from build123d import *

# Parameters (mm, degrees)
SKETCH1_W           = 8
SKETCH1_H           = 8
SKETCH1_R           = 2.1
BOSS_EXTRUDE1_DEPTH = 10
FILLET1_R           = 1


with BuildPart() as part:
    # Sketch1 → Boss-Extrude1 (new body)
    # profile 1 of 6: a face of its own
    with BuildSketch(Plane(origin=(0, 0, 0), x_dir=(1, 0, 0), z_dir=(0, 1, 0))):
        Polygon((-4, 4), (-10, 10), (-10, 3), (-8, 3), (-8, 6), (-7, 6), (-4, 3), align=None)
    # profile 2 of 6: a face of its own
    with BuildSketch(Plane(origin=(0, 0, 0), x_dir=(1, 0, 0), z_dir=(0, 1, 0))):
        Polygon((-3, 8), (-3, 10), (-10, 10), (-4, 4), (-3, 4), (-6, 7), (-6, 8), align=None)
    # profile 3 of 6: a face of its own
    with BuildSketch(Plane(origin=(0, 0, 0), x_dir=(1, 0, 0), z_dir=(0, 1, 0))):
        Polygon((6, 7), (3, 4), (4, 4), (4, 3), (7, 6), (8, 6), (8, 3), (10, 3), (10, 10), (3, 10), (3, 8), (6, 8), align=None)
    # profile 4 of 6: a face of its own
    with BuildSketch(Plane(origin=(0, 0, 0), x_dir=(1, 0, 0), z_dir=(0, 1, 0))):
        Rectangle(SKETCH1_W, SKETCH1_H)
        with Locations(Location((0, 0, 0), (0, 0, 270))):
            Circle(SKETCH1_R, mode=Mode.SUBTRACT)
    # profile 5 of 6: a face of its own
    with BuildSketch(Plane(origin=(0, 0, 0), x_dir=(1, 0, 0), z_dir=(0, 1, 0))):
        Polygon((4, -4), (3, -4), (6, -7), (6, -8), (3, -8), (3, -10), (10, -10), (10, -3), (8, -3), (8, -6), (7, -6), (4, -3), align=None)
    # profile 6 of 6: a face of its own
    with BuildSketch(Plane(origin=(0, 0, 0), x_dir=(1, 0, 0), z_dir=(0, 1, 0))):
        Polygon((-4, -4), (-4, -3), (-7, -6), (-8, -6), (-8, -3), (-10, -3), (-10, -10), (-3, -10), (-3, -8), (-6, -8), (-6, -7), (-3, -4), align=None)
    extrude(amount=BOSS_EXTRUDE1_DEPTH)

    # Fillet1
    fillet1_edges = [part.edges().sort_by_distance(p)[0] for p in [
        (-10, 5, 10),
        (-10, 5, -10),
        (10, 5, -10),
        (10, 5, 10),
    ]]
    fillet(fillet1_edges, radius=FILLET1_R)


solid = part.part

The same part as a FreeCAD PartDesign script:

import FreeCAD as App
import Part
import Sketcher

V = App.Vector
Q = App.Units.Quantity


def edges_at(feature, points):
    """Names of the edges that pass closest to the given points."""
    edges = feature.Shape.Edges
    near = lambda p: min(range(len(edges)), key=lambda i: edges[i].distToShape(Part.Vertex(*p))[0])
    return sorted({f"Edge{near(p) + 1}" for p in points})

doc = App.newDocument("Part")
body = doc.addObject("PartDesign::Body", "Body")

# Sketch on XZ plane
sketch1 = doc.addObject("Sketcher::SketchObject", "Sketch")
body.addObject(sketch1)
sketch1.AttachmentSupport = (doc.XZ_Plane, [""])
sketch1.MapMode = "FlatFace"
sketch1.addGeometry(Part.LineSegment(V(-10, -10, 0), V(-10, -3, 0)), False)
sketch1.addGeometry(Part.LineSegment(V(-10, -3, 0), V(-8, -3, 0)), False)
sketch1.addGeometry(Part.LineSegment(V(-8, -3, 0), V(-8, -6, 0)), False)
sketch1.addGeometry(Part.LineSegment(V(-8, -6, 0), V(-7, -6, 0)), False)
sketch1.addGeometry(Part.LineSegment(V(-7, -6, 0), V(-4, -3, 0)), False)
sketch1.addGeometry(Part.LineSegment(V(-4, -3, 0), V(-4, 3, 0)), False)
sketch1.addGeometry(Part.LineSegment(V(-4, 3, 0), V(-7, 6, 0)), False)
sketch1.addGeometry(Part.LineSegment(V(-7, 6, 0), V(-8, 6, 0)), False)
sketch1.addGeometry(Part.LineSegment(V(-8, 6, 0), V(-8, 3, 0)), False)
sketch1.addGeometry(Part.LineSegment(V(-8, 3, 0), V(-10, 3, 0)), False)
sketch1.addGeometry(Part.LineSegment(V(-10, 3, 0), V(-10, 10, 0)), False)
sketch1.addGeometry(Part.LineSegment(V(-10, 10, 0), V(-3, 10, 0)), False)
sketch1.addGeometry(Part.LineSegment(V(-3, 10, 0), V(-3, 8, 0)), False)
sketch1.addGeometry(Part.LineSegment(V(-3, 8, 0), V(-6, 8, 0)), False)
sketch1.addGeometry(Part.LineSegment(V(-6, 8, 0), V(-6, 7, 0)), False)
sketch1.addGeometry(Part.LineSegment(V(-6, 7, 0), V(-3, 4, 0)), False)
sketch1.addGeometry(Part.LineSegment(V(-3, 4, 0), V(3, 4, 0)), False)
sketch1.addGeometry(Part.LineSegment(V(3, 4, 0), V(6, 7, 0)), False)
sketch1.addGeometry(Part.LineSegment(V(6, 7, 0), V(6, 8, 0)), False)
sketch1.addGeometry(Part.LineSegment(V(6, 8, 0), V(3, 8, 0)), False)
sketch1.addGeometry(Part.LineSegment(V(3, 8, 0), V(3, 10, 0)), False)
sketch1.addGeometry(Part.LineSegment(V(3, 10, 0), V(10, 10, 0)), False)
sketch1.addGeometry(Part.LineSegment(V(10, 10, 0), V(10, 3, 0)), False)
sketch1.addGeometry(Part.LineSegment(V(10, 3, 0), V(8, 3, 0)), False)
sketch1.addGeometry(Part.LineSegment(V(8, 3, 0), V(8, 6, 0)), False)
sketch1.addGeometry(Part.LineSegment(V(8, 6, 0), V(7, 6, 0)), False)
sketch1.addGeometry(Part.LineSegment(V(7, 6, 0), V(4, 3, 0)), False)
sketch1.addGeometry(Part.LineSegment(V(4, 3, 0), V(4, -3, 0)), False)
sketch1.addGeometry(Part.LineSegment(V(4, -3, 0), V(7, -6, 0)), False)
sketch1.addGeometry(Part.LineSegment(V(7, -6, 0), V(8, -6, 0)), False)
sketch1.addGeometry(Part.LineSegment(V(8, -6, 0), V(8, -3, 0)), False)
sketch1.addGeometry(Part.LineSegment(V(8, -3, 0), V(10, -3, 0)), False)
sketch1.addGeometry(Part.LineSegment(V(10, -3, 0), V(10, -10, 0)), False)
sketch1.addGeometry(Part.LineSegment(V(10, -10, 0), V(3, -10, 0)), False)
sketch1.addGeometry(Part.LineSegment(V(3, -10, 0), V(3, -8, 0)), False)
sketch1.addGeometry(Part.LineSegment(V(3, -8, 0), V(6, -8, 0)), False)
sketch1.addGeometry(Part.LineSegment(V(6, -8, 0), V(6, -7, 0)), False)
sketch1.addGeometry(Part.LineSegment(V(6, -7, 0), V(3, -4, 0)), False)
sketch1.addGeometry(Part.LineSegment(V(3, -4, 0), V(-3, -4, 0)), False)
sketch1.addGeometry(Part.LineSegment(V(-3, -4, 0), V(-6, -7, 0)), False)
sketch1.addGeometry(Part.LineSegment(V(-6, -7, 0), V(-6, -8, 0)), False)
sketch1.addGeometry(Part.LineSegment(V(-6, -8, 0), V(-3, -8, 0)), False)
sketch1.addGeometry(Part.LineSegment(V(-3, -8, 0), V(-3, -10, 0)), False)
sketch1.addGeometry(Part.LineSegment(V(-3, -10, 0), V(-10, -10, 0)), False)
sketch1.addGeometry(Part.Circle(V(0, 0, 0), V(0, 0, 1), 2.1), False)
sketch1.addConstraint(Sketcher.Constraint("Coincident", 0, 2, 1, 1))
sketch1.addConstraint(Sketcher.Constraint("Coincident", 1, 2, 2, 1))
sketch1.addConstraint(Sketcher.Constraint("Coincident", 2, 2, 3, 1))
sketch1.addConstraint(Sketcher.Constraint("Coincident", 3, 2, 4, 1))
sketch1.addConstraint(Sketcher.Constraint("Coincident", 4, 2, 5, 1))
sketch1.addConstraint(Sketcher.Constraint("Coincident", 5, 2, 6, 1))
sketch1.addConstraint(Sketcher.Constraint("Coincident", 6, 2, 7, 1))
sketch1.addConstraint(Sketcher.Constraint("Coincident", 7, 2, 8, 1))
sketch1.addConstraint(Sketcher.Constraint("Coincident", 8, 2, 9, 1))
sketch1.addConstraint(Sketcher.Constraint("Coincident", 9, 2, 10, 1))
sketch1.addConstraint(Sketcher.Constraint("Coincident", 10, 2, 11, 1))
sketch1.addConstraint(Sketcher.Constraint("Coincident", 11, 2, 12, 1))
sketch1.addConstraint(Sketcher.Constraint("Coincident", 12, 2, 13, 1))
sketch1.addConstraint(Sketcher.Constraint("Coincident", 13, 2, 14, 1))
sketch1.addConstraint(Sketcher.Constraint("Coincident", 14, 2, 15, 1))
sketch1.addConstraint(Sketcher.Constraint("Coincident", 15, 2, 16, 1))
sketch1.addConstraint(Sketcher.Constraint("Coincident", 16, 2, 17, 1))
sketch1.addConstraint(Sketcher.Constraint("Coincident", 17, 2, 18, 1))
sketch1.addConstraint(Sketcher.Constraint("Coincident", 18, 2, 19, 1))
sketch1.addConstraint(Sketcher.Constraint("Coincident", 19, 2, 20, 1))
sketch1.addConstraint(Sketcher.Constraint("Coincident", 20, 2, 21, 1))
sketch1.addConstraint(Sketcher.Constraint("Coincident", 21, 2, 22, 1))
sketch1.addConstraint(Sketcher.Constraint("Coincident", 22, 2, 23, 1))
sketch1.addConstraint(Sketcher.Constraint("Coincident", 23, 2, 24, 1))
sketch1.addConstraint(Sketcher.Constraint("Coincident", 24, 2, 25, 1))
sketch1.addConstraint(Sketcher.Constraint("Coincident", 25, 2, 26, 1))
sketch1.addConstraint(Sketcher.Constraint("Coincident", 26, 2, 27, 1))
sketch1.addConstraint(Sketcher.Constraint("Coincident", 27, 2, 28, 1))
sketch1.addConstraint(Sketcher.Constraint("Coincident", 28, 2, 29, 1))
sketch1.addConstraint(Sketcher.Constraint("Coincident", 29, 2, 30, 1))
sketch1.addConstraint(Sketcher.Constraint("Coincident", 30, 2, 31, 1))
sketch1.addConstraint(Sketcher.Constraint("Coincident", 31, 2, 32, 1))
sketch1.addConstraint(Sketcher.Constraint("Coincident", 32, 2, 33, 1))
sketch1.addConstraint(Sketcher.Constraint("Coincident", 33, 2, 34, 1))
sketch1.addConstraint(Sketcher.Constraint("Coincident", 34, 2, 35, 1))
sketch1.addConstraint(Sketcher.Constraint("Coincident", 35, 2, 36, 1))
sketch1.addConstraint(Sketcher.Constraint("Coincident", 36, 2, 37, 1))
sketch1.addConstraint(Sketcher.Constraint("Coincident", 37, 2, 38, 1))
sketch1.addConstraint(Sketcher.Constraint("Coincident", 38, 2, 39, 1))
sketch1.addConstraint(Sketcher.Constraint("Coincident", 39, 2, 40, 1))
sketch1.addConstraint(Sketcher.Constraint("Coincident", 40, 2, 41, 1))
sketch1.addConstraint(Sketcher.Constraint("Coincident", 41, 2, 42, 1))
sketch1.addConstraint(Sketcher.Constraint("Coincident", 42, 2, 43, 1))
sketch1.addConstraint(Sketcher.Constraint("Coincident", 43, 2, 0, 1))
sketch1.addConstraint(Sketcher.Constraint("Vertical", 0))
sketch1.addConstraint(Sketcher.Constraint("Horizontal", 1))
sketch1.addConstraint(Sketcher.Constraint("Vertical", 2))
sketch1.addConstraint(Sketcher.Constraint("Horizontal", 3))
sketch1.addConstraint(Sketcher.Constraint("Vertical", 5))
sketch1.addConstraint(Sketcher.Constraint("Horizontal", 7))
sketch1.addConstraint(Sketcher.Constraint("Vertical", 8))
sketch1.addConstraint(Sketcher.Constraint("Horizontal", 9))
sketch1.addConstraint(Sketcher.Constraint("Vertical", 10))
sketch1.addConstraint(Sketcher.Constraint("Horizontal", 11))
sketch1.addConstraint(Sketcher.Constraint("Vertical", 12))
sketch1.addConstraint(Sketcher.Constraint("Horizontal", 13))
sketch1.addConstraint(Sketcher.Constraint("Vertical", 14))
sketch1.addConstraint(Sketcher.Constraint("Horizontal", 16))
sketch1.addConstraint(Sketcher.Constraint("Vertical", 18))
sketch1.addConstraint(Sketcher.Constraint("Horizontal", 19))
sketch1.addConstraint(Sketcher.Constraint("Vertical", 20))
sketch1.addConstraint(Sketcher.Constraint("Horizontal", 21))
sketch1.addConstraint(Sketcher.Constraint("Vertical", 22))
sketch1.addConstraint(Sketcher.Constraint("Horizontal", 23))
sketch1.addConstraint(Sketcher.Constraint("Vertical", 24))
sketch1.addConstraint(Sketcher.Constraint("Horizontal", 25))
sketch1.addConstraint(Sketcher.Constraint("Vertical", 27))
sketch1.addConstraint(Sketcher.Constraint("Horizontal", 29))
sketch1.addConstraint(Sketcher.Constraint("Vertical", 30))
sketch1.addConstraint(Sketcher.Constraint("Horizontal", 31))
sketch1.addConstraint(Sketcher.Constraint("Vertical", 32))
sketch1.addConstraint(Sketcher.Constraint("Horizontal", 33))
sketch1.addConstraint(Sketcher.Constraint("Vertical", 34))
sketch1.addConstraint(Sketcher.Constraint("Horizontal", 35))
sketch1.addConstraint(Sketcher.Constraint("Vertical", 36))
sketch1.addConstraint(Sketcher.Constraint("Horizontal", 38))
sketch1.addConstraint(Sketcher.Constraint("Vertical", 40))
sketch1.addConstraint(Sketcher.Constraint("Horizontal", 41))
sketch1.addConstraint(Sketcher.Constraint("Vertical", 42))
sketch1.addConstraint(Sketcher.Constraint("Horizontal", 43))
sketch1.addConstraint(Sketcher.Constraint("Coincident", 44, 3, -1, 1))
sketch1.addConstraint(Sketcher.Constraint("Symmetric", 0, 2, 22, 2, -1, 1))
sketch1.addConstraint(Sketcher.Constraint("Symmetric", 2, 2, 24, 2, -1, 1))
sketch1.addConstraint(Sketcher.Constraint("Symmetric", 4, 2, 26, 2, -1, 1))
sketch1.addConstraint(Sketcher.Constraint("Symmetric", 6, 2, 28, 2, -1, 1))
sketch1.addConstraint(Sketcher.Constraint("Symmetric", 8, 2, 30, 2, -1, 1))
sketch1.addConstraint(Sketcher.Constraint("Symmetric", 10, 2, 32, 2, -1, 1))
sketch1.addConstraint(Sketcher.Constraint("Symmetric", 12, 2, 34, 2, -1, 1))
sketch1.addConstraint(Sketcher.Constraint("Symmetric", 14, 2, 36, 2, -1, 1))
sketch1.addConstraint(Sketcher.Constraint("Symmetric", 15, 2, 37, 2, -1, 1))
sketch1.addConstraint(Sketcher.Constraint("Symmetric", 17, 2, 39, 2, -1, 1))
sketch1.addConstraint(Sketcher.Constraint("Symmetric", 19, 2, 41, 2, -1, 1))
sketch1.addConstraint(Sketcher.Constraint("Symmetric", 14, 2, 17, 2, -2))
sketch1.addConstraint(Sketcher.Constraint("Symmetric", 12, 2, 19, 2, -2))
sketch1.addConstraint(Sketcher.Constraint("Symmetric", 10, 2, 21, 2, -2))
sketch1.addConstraint(Sketcher.Constraint("Symmetric", 8, 2, 23, 2, -2))
sketch1.addConstraint(Sketcher.Constraint("Symmetric", 6, 2, 25, 2, -2))
sketch1.addConstraint(Sketcher.Constraint("Perpendicular", 4, 6))
sketch1.addConstraint(Sketcher.Constraint("Parallel", 6, 15))
sketch1.addConstraint(Sketcher.Constraint("Perpendicular", 15, 17))
sketch1.addConstraint(Sketcher.Constraint("Parallel", 17, 26))
sketch1.addConstraint(Sketcher.Constraint("Perpendicular", 26, 28))
sketch1.addConstraint(Sketcher.Constraint("Perpendicular", 37, 39))
sketch1.addConstraint(Sketcher.Constraint("Horizontal", 1, 2, 4, 2))
sketch1.addConstraint(Sketcher.Constraint("Horizontal", 5, 2, 8, 2))
sketch1.addConstraint(Sketcher.Constraint("Horizontal", 33, 2, 42, 2))
sketch1.addConstraint(Sketcher.Constraint("Vertical", 12, 2, 15, 2))
sketch1.addConstraint(Sketcher.Constraint("Equal", 43, 0))
sketch1.addConstraint(Sketcher.Constraint("Equal", 41, 2))
sketch1.addConstraint(Sketcher.Constraint("Equal", 38, 5))
sketch1.addConstraint(Sketcher.Constraint("Equal", 31, 12))
sketch1.addConstraint(Sketcher.Constraint("Equal", 29, 14))
sketch1.addConstraint(Sketcher.Constraint("Diameter", 44, Q("4.2 mm")))
sketch1.addConstraint(Sketcher.Constraint("DistanceX", 1, 1, 1, 2, Q("2 mm")))
sketch1.addConstraint(Sketcher.Constraint("DistanceX", 3, 1, 3, 2, Q("1 mm")))
sketch1.addConstraint(Sketcher.Constraint("DistanceX", 11, 1, 11, 2, Q("7 mm")))
sketch1.addConstraint(Sketcher.Constraint("DistanceX", 13, 2, 13, 1, Q("3 mm")))
sketch1.addConstraint(Sketcher.Constraint("DistanceX", 16, 1, 16, 2, Q("6 mm")))
pad1 = doc.addObject("PartDesign::Pad", "Pad")
body.addObject(pad1)
pad1.Profile = sketch1
pad1.Length = 10
pad1.Reversed = True
doc.recompute()

fillet = doc.addObject("PartDesign::Fillet", "Fillet")
body.addObject(fillet)
fillet.Base = (pad1, edges_at(pad1, [
    (-10, 5, 10),
    (-10, 5, -10),
    (10, 5, -10),
    (10, 5, 10),
]))
fillet.Radius = 1

doc.recompute()
